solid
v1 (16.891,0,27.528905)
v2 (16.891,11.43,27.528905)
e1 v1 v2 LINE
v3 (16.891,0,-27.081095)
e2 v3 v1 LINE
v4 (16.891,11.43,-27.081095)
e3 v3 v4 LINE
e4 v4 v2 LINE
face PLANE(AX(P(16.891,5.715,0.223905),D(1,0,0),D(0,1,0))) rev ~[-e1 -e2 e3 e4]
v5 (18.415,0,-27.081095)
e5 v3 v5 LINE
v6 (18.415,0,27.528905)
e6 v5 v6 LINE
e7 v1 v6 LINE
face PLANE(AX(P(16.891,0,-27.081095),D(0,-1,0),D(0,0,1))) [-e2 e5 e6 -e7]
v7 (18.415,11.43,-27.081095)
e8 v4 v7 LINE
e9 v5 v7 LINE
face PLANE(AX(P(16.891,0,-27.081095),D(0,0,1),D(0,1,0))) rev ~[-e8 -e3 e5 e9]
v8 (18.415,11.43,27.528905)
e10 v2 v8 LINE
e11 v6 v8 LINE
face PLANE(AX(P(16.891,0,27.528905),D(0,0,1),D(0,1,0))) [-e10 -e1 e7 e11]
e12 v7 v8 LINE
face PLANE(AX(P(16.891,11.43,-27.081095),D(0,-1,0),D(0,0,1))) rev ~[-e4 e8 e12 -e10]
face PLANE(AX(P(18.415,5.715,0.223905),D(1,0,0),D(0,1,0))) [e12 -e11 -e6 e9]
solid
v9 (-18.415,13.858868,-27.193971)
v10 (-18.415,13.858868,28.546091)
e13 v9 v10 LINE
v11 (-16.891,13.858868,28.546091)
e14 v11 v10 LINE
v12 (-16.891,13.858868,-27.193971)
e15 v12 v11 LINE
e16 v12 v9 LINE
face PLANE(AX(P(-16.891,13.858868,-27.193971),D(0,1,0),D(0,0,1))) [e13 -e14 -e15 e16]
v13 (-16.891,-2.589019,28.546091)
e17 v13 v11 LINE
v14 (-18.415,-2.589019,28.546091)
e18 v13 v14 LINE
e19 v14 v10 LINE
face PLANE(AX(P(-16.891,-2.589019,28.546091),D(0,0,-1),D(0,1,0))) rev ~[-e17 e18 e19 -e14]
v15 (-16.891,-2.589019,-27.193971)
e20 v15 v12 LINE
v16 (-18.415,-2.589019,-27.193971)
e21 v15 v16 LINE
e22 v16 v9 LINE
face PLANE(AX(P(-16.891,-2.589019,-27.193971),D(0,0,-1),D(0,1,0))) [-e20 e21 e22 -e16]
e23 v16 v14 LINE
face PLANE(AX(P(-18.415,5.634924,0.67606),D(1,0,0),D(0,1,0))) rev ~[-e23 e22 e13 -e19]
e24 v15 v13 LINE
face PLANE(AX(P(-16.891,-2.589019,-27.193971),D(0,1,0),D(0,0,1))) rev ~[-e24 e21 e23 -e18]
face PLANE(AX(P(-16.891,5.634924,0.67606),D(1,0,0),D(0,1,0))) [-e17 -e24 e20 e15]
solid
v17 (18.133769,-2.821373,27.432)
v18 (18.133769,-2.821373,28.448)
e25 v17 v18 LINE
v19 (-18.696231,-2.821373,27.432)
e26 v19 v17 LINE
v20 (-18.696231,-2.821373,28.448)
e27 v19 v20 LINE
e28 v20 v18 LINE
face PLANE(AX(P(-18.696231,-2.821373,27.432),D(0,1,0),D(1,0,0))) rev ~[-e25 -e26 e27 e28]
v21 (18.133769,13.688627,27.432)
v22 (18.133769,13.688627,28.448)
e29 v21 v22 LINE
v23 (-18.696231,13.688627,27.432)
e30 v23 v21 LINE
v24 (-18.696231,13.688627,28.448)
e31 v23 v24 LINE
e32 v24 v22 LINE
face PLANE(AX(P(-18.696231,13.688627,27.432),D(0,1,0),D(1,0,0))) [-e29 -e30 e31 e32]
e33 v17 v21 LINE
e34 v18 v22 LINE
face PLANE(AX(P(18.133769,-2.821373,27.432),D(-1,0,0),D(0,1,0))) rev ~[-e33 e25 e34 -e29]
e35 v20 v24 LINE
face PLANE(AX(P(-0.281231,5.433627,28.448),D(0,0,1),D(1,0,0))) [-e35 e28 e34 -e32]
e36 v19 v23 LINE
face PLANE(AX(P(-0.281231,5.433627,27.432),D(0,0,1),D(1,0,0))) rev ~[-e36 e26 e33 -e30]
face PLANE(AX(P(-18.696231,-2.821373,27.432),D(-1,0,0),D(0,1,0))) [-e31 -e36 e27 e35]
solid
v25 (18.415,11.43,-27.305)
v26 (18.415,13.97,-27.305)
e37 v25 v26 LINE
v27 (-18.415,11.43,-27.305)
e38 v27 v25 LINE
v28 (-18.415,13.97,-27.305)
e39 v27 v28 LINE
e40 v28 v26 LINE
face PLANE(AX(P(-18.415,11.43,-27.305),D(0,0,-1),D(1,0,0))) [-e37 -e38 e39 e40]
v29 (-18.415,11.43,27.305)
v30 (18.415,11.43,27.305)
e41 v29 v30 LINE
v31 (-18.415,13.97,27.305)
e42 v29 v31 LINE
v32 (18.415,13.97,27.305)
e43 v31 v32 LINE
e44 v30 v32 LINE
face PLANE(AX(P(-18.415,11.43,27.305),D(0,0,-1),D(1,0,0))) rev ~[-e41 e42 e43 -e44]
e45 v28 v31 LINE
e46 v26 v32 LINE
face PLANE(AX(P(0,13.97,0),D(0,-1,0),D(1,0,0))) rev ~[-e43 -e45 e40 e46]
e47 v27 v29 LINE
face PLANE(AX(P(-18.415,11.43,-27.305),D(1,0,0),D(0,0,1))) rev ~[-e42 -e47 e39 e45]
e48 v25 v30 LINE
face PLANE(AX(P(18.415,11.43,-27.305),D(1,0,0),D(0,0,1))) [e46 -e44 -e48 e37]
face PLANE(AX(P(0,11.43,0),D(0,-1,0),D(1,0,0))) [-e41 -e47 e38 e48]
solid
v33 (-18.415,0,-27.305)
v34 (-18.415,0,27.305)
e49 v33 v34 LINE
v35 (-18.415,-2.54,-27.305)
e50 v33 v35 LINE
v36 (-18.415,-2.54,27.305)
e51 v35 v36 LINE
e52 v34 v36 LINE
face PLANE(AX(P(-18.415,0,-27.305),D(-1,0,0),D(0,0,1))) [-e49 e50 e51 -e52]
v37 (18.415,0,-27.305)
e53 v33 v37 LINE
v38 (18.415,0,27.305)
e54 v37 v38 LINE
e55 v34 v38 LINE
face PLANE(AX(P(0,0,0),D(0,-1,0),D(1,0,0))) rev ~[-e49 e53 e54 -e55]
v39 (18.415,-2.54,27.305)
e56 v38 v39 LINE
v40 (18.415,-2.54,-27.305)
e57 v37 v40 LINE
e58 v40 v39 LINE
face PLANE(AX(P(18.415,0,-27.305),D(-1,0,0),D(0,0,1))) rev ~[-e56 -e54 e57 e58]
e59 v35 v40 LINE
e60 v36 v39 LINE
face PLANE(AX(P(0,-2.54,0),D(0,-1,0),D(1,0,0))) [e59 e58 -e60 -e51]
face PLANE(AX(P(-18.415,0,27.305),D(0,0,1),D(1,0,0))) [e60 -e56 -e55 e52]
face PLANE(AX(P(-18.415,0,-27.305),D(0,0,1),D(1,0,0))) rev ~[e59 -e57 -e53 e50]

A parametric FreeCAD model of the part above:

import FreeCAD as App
import Part
import Sketcher
from FreeCAD import Vector
Q = App.Units.Quantity


def add_polygon(sketch, points):
    """Adds a closed chain of lines whose ends are joined by coincident constraints."""
    first, n = sketch.GeometryCount, len(points)
    for a, b in zip(points, points[1:] + points[:1]):
        sketch.addGeometry(Part.LineSegment(App.Vector(*a, 0), App.Vector(*b, 0)), False)
    for i in range(n):
        sketch.addConstraint(Sketcher.Constraint("Coincident", first + i, 2, first + (i + 1) % n, 1))

doc = App.newDocument("Part")
body = doc.addObject("PartDesign::Body", "Body")

# Sketch on XZ plane
sketch1 = body.newObject("Sketcher::SketchObject", "Sketch")
sketch1.AttachmentSupport = (doc.getObject("XZ_Plane"), [""])
sketch1.MapMode = "FlatFace"
add_polygon(sketch1, [(-18, 27), (-18, -27), (18, -27), (18, 27)])  # lines 0-3
sketch1.addConstraint([
    Sketcher.Constraint("Vertical", 0),
    Sketcher.Constraint("Horizontal", 1),
    Sketcher.Constraint("Vertical", 2),
    Sketcher.Constraint("Horizontal", 3),
    Sketcher.Constraint("Symmetric", 0, 2, 2, 2, -1, 1),
    Sketcher.Constraint("DistanceX", 1, 1, 1, 2, Q("1.45 in")),
    Sketcher.Constraint("DistanceY", 0, 2, 0, 1, Q("2.15 in")),
])
pad1 = body.newObject("PartDesign::Pad", "Pad")
pad1.Profile = sketch1
pad1.Length = Q("0.1 in")
body2 = doc.addObject("PartDesign::Body", "Body001")

# Sketch on XZ plane
sketch2 = body2.newObject("Sketcher::SketchObject", "Sketch001")
sketch2.AttachmentSupport = (doc.getObject("XZ_Plane001"), [""])
sketch2.MapMode = "FlatFace"
sketch2.AttachmentOffset = App.Placement(Vector(0, 0, -0.45 * 25.4), App.Rotation())
add_polygon(sketch2, [(-18, 27), (-18, -27), (18, -27), (18, 27)])  # lines 0-3
sketch2.addConstraint([
    Sketcher.Constraint("Vertical", 0),
    Sketcher.Constraint("Horizontal", 1),
    Sketcher.Constraint("Vertical", 2),
    Sketcher.Constraint("Horizontal", 3),
    Sketcher.Constraint("Symmetric", 0, 2, 2, 2, -1, 1),
    Sketcher.Constraint("DistanceX", 1, 1, 1, 2, Q("1.45 in")),
    Sketcher.Constraint("DistanceY", 0, 2, 0, 1, Q("2.15 in")),
])
pad2 = body2.newObject("PartDesign::Pad", "Pad001")
pad2.Profile = sketch2
pad2.Length = Q("0.1 in")
pad2.Reversed = True
body3 = doc.addObject("PartDesign::Body", "Body002")

# Sketch on YZ plane
sketch3 = body3.newObject("Sketcher::SketchObject", "Sketch002")
sketch3.AttachmentSupport = (doc.getObject("YZ_Plane002"), [""])
sketch3.MapMode = "FlatFace"
sketch3.AttachmentOffset = App.Placement(Vector(0, 0, 0.665 * 25.4), App.Rotation())
add_polygon(sketch3, [(0, 28), (0, -27), (11, -27), (11, 28)])  # lines 0-3
sketch3.addConstraint([
    Sketcher.Constraint("Vertical", 0),
    Sketcher.Constraint("Horizontal", 1),
    Sketcher.Constraint("Vertical", 2),
    Sketcher.Constraint("Horizontal", 3),
    Sketcher.Constraint("PointOnObject", 0, 2, -2),
    Sketcher.Constraint("DistanceX", 1, 1, 1, 2, Q("0.45 in")),
    Sketcher.Constraint("DistanceY", 0, 2, 0, 1, Q("2.15 in")),
    Sketcher.Constraint("DistanceY", 0, 2, -1, 1, 27.081095),
])
pad3 = body3.newObject("PartDesign::Pad", "Pad002")
pad3.Profile = sketch3
pad3.Length = Q("0.06 in")
body4 = doc.addObject("PartDesign::Body", "Body003")

# Sketch on XY plane
sketch4 = body4.newObject("Sketcher::SketchObject", "Sketch003")
sketch4.AttachmentSupport = (doc.getObject("XY_Plane003"), [""])
sketch4.MapMode = "FlatFace"
sketch4.AttachmentOffset = App.Placement(Vector(0, 0, 1.08 * 25.4), App.Rotation())
add_polygon(sketch4, [(-19, 14), (-19, -3), (18, -3), (18, 14)])  # lines 0-3
sketch4.addConstraint([
    Sketcher.Constraint("Vertical", 0),
    Sketcher.Constraint("Horizontal", 1),
    Sketcher.Constraint("Vertical", 2),
    Sketcher.Constraint("Horizontal", 3),
    Sketcher.Constraint("DistanceX", 1, 1, 1, 2, Q("1.45 in")),
    Sketcher.Constraint("DistanceY", 0, 2, 0, 1, Q("0.65 in")),
    Sketcher.Constraint("DistanceX", 0, 2, -1, 1, 18.696231),
    Sketcher.Constraint("DistanceY", 0, 2, -1, 1, 2.821373),
])
pad4 = body4.newObject("PartDesign::Pad", "Pad003")
pad4.Profile = sketch4
pad4.Length = Q("0.04 in")
body5 = doc.addObject("PartDesign::Body", "Body004")

# Sketch on YZ plane
sketch5 = body5.newObject("Sketcher::SketchObject", "Sketch004")
sketch5.AttachmentSupport = (doc.getObject("YZ_Plane004"), [""])
sketch5.MapMode = "FlatFace"
sketch5.AttachmentOffset = App.Placement(Vector(0, 0, -0.665 * 25.4), App.Rotation())
add_polygon(sketch5, [(-3, 29), (-3, -27), (14, -27), (14, 29)])  # lines 0-3
sketch5.addConstraint([
    Sketcher.Constraint("Vertical", 0),
    Sketcher.Constraint("Horizontal", 1),
    Sketcher.Constraint("Vertical", 2),
    Sketcher.Constraint("Horizontal", 3),
    Sketcher.Constraint("DistanceX", 1, 1, 1, 2, 16.447887),
    Sketcher.Constraint("DistanceY", 0, 2, 0, 1, 55.740062),
    Sketcher.Constraint("DistanceX", 0, 2, -1, 1, 2.589019),
    Sketcher.Constraint("DistanceY", 0, 2, -1, 1, 27.193971),
])
pad5 = body5.newObject("PartDesign::Pad", "Pad004")
pad5.Profile = sketch5
pad5.Length = Q("0.06 in")
pad5.Reversed = True

doc.recompute()
